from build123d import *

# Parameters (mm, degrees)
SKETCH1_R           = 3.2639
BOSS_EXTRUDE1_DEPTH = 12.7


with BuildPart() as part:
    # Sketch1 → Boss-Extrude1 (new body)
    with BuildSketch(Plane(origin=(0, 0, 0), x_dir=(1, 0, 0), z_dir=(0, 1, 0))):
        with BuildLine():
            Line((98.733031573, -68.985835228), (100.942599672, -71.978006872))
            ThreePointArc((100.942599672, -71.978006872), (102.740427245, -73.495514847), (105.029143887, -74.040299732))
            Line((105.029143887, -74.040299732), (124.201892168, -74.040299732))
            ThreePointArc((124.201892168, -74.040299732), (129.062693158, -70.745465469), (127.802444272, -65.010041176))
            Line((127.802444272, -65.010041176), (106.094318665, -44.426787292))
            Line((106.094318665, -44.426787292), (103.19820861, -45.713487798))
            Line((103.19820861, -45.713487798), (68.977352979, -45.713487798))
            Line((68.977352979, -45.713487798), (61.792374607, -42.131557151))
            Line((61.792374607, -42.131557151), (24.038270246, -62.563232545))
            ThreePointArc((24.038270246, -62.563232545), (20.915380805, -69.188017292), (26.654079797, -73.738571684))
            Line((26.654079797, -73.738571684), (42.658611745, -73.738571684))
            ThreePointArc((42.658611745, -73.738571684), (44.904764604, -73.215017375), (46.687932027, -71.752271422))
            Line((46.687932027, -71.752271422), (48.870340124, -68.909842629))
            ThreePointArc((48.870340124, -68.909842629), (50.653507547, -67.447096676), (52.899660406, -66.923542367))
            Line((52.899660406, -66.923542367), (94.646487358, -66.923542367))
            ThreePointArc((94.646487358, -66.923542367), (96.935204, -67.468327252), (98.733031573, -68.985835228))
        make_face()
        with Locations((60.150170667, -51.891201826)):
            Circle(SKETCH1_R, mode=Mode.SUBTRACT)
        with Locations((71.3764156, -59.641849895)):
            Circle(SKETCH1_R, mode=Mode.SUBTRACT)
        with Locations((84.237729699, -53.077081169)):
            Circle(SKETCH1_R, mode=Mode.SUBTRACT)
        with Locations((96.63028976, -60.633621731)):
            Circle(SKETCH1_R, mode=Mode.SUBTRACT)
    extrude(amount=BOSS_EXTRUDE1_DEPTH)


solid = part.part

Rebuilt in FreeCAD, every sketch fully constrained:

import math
import FreeCAD as App
import Part
import Sketcher
Q = App.Units.Quantity

doc = App.newDocument("Part")
body = doc.addObject("PartDesign::Body", "Body")

# Sketch on XZ plane
sketch1 = body.newObject("Sketcher::SketchObject", "Sketch")
sketch1.AttachmentSupport = (doc.getObject("XZ_Plane"), [""])
sketch1.MapMode = "FlatFace"
sketch1.addGeometry([
    Part.LineSegment(App.Vector(98.7, 69, 0), App.Vector(100.9, 72, 0)),  # 0
    Part.ArcOfCircle(Part.Circle(App.Vector(105, 69, 0), App.Vector(0, 0, 1), 5.1), math.radians(90), math.radians(144)),  # 1
    Part.LineSegment(App.Vector(105, 74, 0), App.Vector(124.2, 74, 0)),  # 2
    Part.ArcOfCircle(Part.Circle(App.Vector(124.2, 68.8, 0), App.Vector(0, 0, 1), 5.2), math.radians(-47), math.radians(90)),  # 3
    Part.LineSegment(App.Vector(127.8, 65, 0), App.Vector(106.1, 44.4, 0)),  # 4
    Part.LineSegment(App.Vector(106.1, 44.4, 0), App.Vector(103.2, 45.7, 0)),  # 5
    Part.LineSegment(App.Vector(103.2, 45.7, 0), App.Vector(69, 45.7, 0)),  # 6
    Part.LineSegment(App.Vector(69, 45.7, 0), App.Vector(61.8, 42.1, 0)),  # 7
    Part.LineSegment(App.Vector(61.8, 42.1, 0), App.Vector(24, 62.6, 0)),  # 8
    Part.ArcOfCircle(Part.Circle(App.Vector(26.7, 67.8, 0), App.Vector(0, 0, 1), 5.9), math.radians(90), math.radians(244)),  # 9
    Part.LineSegment(App.Vector(26.7, 73.7, 0), App.Vector(42.7, 73.7, 0)),  # 10
    Part.ArcOfCircle(Part.Circle(App.Vector(42.7, 68.7, 0), App.Vector(0, 0, 1), 5.1), math.radians(38), math.radians(90)),  # 11
    Part.LineSegment(App.Vector(46.7, 71.8, 0), App.Vector(48.9, 68.9, 0)),  # 12
    Part.ArcOfCircle(Part.Circle(App.Vector(52.9, 72, 0), App.Vector(0, 0, 1), 5.1), math.radians(-142), math.radians(-90)),  # 13
    Part.LineSegment(App.Vector(52.9, 66.9, 0), App.Vector(94.6, 66.9, 0)),  # 14
    Part.ArcOfCircle(Part.Circle(App.Vector(94.6, 72, 0), App.Vector(0, 0, 1), 5.1), math.radians(-90), math.radians(-36)),  # 15
    Part.Circle(App.Vector(71.4, 59.6, 0), App.Vector(0, 0, 1), 3.3),  # 16
    Part.Circle(App.Vector(96.6, 60.6, 0), App.Vector(0, 0, 1), 3.3),  # 17
    Part.Circle(App.Vector(60.2, 51.9, 0), App.Vector(0, 0, 1), 3.3),  # 18
    Part.Circle(App.Vector(84.2, 53.1, 0), App.Vector(0, 0, 1), 3.3),  # 19
], False)
sketch1.addConstraint([
    Sketcher.Constraint("Tangent", 0, 2, 1, 2),
    Sketcher.Constraint("Tangent", 1, 1, 2, 1),
    Sketcher.Constraint("Tangent", 2, 2, 3, 2),
    Sketcher.Constraint("Tangent", 3, 1, 4, 1),
    Sketcher.Constraint("Coincident", 4, 2, 5, 1),
    Sketcher.Constraint("Coincident", 5, 2, 6, 1),
    Sketcher.Constraint("Coincident", 6, 2, 7, 1),
    Sketcher.Constraint("Coincident", 7, 2, 8, 1),
    Sketcher.Constraint("Coincident", 8, 2, 9, 2),
    Sketcher.Constraint("Tangent", 9, 1, 10, 1),
    Sketcher.Constraint("Tangent", 10, 2, 11, 2),
    Sketcher.Constraint("Tangent", 11, 1, 12, 1),
    Sketcher.Constraint("Tangent", 12, 2, 13, 1),
    Sketcher.Constraint("Tangent", 13, 2, 14, 1),
    Sketcher.Constraint("Tangent", 14, 2, 15, 1),
    Sketcher.Constraint("Tangent", 15, 2, 0, 1),
    Sketcher.Constraint("Horizontal", 2),
    Sketcher.Constraint("Horizontal", 6),
    Sketcher.Constraint("Horizontal", 10),
    Sketcher.Constraint("Horizontal", 14),
    Sketcher.Constraint("Equal", 1, 11),
    Sketcher.Constraint("Equal", 11, 13),
    Sketcher.Constraint("Equal", 13, 15),
    Sketcher.Constraint("Equal", 16, 17),
    Sketcher.Constraint("Equal", 17, 18),
    Sketcher.Constraint("Equal", 18, 19),
    Sketcher.Constraint("Radius", 1, Q("0.2 in")),
    Sketcher.Constraint("Diameter", 16, Q("0.257 in")),
    Sketcher.Constraint("Radius", 9, 5.893811),
    Sketcher.Constraint("Radius", 3, 5.232937),
    Sketcher.Constraint("DistanceX", 2, 1, 2, 2, 19.172748),
    Sketcher.Constraint("DistanceX", 10, 1, 10, 2, 16.004532),
    Sketcher.Constraint("DistanceY", -1, 1, 1, 3, 68.9603),
    Sketcher.Constraint("DistanceY", -1, 1, 18, 3, 51.891202),
    Sketcher.Constraint("DistanceX", -1, 1, 0, 2, 100.9426),
    Sketcher.Constraint("DistanceY", 9, 3, 3, 3, 0.962602),
    Sketcher.Constraint("DistanceX", 1, 3, 3, 1, 22.7733),
    Sketcher.Constraint("DistanceY", 4, 2, 5, 2, 1.286701),
    Sketcher.Constraint("DistanceX", 8, 2, 18, 3, 36.1119),
    Sketcher.Constraint("DistanceY", 11, 1, 10, 2, 1.9863),
    Sketcher.Constraint("Distance", 0, 3.719581),
    Sketcher.Constraint("DistanceX", 6, 2, 6, 1, 34.220856),
    Sketcher.Constraint("DistanceX", 14, 1, 14, 2, 41.746827),
    Sketcher.Constraint("DistanceX", -1, 1, 9, 3, 26.65408),
    Sketcher.Constraint("DistanceY", -1, 1, 16, 3, 59.64185),
    Sketcher.Constraint("DistanceX", -1, 1, 17, 3, 96.63029),
    Sketcher.Constraint("DistanceY", -1, 1, 17, 3, 60.633622),
    Sketcher.Constraint("DistanceX", -1, 1, 18, 3, 60.150171),
    Sketcher.Constraint("DistanceX", -1, 1, 19, 3, 84.23773),
    Sketcher.Constraint("DistanceY", -1, 1, 19, 3, 53.077081),
    Sketcher.Constraint("DistanceX", -1, 1, 4, 2, 106.094319),
    Sketcher.Constraint("DistanceX", -1, 1, 5, 2, 103.198209),
    Sketcher.Constraint("DistanceX", 16, 3, 15, 3, 23.270072),
    Sketcher.Constraint("DistanceX", 7, 2, 6, 2, 7.184978),
    Sketcher.Constraint("DistanceY", 7, 2, 6, 2, 3.581931),
])
pad1 = body.newObject("PartDesign::Pad", "Pad")
pad1.Profile = sketch1
pad1.Length = Q("0.5 in")
pad1.Reversed = True

doc.recompute()
